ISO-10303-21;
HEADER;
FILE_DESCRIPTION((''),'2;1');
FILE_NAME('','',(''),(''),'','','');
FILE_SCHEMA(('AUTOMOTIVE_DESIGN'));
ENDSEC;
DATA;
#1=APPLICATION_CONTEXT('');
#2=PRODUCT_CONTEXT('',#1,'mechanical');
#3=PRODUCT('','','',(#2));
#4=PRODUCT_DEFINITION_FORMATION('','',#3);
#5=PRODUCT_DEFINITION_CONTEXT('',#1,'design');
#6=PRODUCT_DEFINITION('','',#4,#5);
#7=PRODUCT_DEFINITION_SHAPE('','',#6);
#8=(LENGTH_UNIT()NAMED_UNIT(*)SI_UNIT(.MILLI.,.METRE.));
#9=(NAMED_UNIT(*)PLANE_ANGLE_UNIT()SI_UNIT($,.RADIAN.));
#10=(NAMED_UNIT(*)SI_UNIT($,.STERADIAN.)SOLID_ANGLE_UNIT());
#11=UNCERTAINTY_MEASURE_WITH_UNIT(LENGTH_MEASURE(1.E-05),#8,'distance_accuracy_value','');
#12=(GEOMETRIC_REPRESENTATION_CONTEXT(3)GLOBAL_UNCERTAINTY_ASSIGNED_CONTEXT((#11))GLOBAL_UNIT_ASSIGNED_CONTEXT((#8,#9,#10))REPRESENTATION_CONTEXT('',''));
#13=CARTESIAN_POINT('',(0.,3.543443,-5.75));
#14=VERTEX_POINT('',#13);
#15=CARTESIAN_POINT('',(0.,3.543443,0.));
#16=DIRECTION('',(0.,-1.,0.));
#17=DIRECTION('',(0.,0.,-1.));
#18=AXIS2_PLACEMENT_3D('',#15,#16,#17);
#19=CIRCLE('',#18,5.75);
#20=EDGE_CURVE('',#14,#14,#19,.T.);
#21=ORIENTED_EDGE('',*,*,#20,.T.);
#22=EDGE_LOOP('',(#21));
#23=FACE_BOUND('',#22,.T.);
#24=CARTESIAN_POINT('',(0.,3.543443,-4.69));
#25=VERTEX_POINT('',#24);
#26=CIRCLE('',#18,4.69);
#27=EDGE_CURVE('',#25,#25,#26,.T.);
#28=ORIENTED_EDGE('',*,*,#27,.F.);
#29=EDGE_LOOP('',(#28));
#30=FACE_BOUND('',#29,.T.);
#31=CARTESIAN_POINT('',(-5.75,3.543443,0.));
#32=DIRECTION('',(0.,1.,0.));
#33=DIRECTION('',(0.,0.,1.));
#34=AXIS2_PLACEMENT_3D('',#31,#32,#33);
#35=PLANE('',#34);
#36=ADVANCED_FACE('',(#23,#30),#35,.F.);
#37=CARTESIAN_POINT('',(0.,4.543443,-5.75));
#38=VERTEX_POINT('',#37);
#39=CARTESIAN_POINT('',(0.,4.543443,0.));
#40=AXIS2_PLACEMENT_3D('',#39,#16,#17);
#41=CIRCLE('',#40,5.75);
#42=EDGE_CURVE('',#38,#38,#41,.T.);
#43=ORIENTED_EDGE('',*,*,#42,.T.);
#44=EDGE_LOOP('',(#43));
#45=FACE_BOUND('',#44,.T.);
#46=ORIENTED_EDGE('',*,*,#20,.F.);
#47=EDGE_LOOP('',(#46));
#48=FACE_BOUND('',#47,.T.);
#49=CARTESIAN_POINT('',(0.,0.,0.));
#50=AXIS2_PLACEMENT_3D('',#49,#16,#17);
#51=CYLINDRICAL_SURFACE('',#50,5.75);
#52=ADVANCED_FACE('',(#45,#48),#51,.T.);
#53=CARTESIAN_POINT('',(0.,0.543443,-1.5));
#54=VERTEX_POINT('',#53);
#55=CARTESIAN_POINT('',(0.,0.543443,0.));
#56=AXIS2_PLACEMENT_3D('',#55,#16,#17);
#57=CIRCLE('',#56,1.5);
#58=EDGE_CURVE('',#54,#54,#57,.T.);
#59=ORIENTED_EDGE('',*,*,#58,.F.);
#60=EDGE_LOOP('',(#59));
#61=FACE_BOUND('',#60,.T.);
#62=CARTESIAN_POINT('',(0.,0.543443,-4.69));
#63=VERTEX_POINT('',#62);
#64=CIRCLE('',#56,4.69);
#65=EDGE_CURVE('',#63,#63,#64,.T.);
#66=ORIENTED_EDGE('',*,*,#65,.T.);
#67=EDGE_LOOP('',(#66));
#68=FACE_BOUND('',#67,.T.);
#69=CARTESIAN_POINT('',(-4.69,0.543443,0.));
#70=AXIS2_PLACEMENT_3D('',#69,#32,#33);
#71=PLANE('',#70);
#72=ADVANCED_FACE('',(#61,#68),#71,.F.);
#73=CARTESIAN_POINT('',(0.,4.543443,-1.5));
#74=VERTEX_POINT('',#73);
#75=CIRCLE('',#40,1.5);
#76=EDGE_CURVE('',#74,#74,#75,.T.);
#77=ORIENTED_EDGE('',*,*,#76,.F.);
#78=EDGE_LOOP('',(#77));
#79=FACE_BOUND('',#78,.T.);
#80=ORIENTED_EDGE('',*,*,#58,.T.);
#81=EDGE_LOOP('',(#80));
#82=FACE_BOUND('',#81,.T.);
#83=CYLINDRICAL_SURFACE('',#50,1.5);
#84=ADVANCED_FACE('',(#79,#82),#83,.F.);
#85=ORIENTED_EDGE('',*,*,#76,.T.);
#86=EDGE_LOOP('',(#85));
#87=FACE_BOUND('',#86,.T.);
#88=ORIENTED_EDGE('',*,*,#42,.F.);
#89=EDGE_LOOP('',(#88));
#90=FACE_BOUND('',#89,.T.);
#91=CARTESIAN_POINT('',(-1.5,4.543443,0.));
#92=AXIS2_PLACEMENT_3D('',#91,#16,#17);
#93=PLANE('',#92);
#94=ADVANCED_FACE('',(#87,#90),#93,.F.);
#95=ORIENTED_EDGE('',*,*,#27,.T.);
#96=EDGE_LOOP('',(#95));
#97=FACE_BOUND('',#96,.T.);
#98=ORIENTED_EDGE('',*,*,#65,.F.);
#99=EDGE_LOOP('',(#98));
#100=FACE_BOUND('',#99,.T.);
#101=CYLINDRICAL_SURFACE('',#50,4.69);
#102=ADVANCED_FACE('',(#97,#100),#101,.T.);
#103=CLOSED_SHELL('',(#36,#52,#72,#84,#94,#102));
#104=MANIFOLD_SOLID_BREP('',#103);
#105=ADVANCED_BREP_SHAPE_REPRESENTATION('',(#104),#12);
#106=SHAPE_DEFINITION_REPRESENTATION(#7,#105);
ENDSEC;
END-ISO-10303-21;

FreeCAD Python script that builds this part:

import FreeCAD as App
import Part
import Sketcher

V = App.Vector
Q = App.Units.Quantity


def add_polygon(sketch, points):
    """Adds a closed chain of lines whose ends are joined by coincident constraints."""
    first, n = sketch.GeometryCount, len(points)
    for a, b in zip(points, points[1:] + points[:1]):
        sketch.addGeometry(Part.LineSegment(App.Vector(*a, 0), App.Vector(*b, 0)), False)
    for i in range(n):
        sketch.addConstraint(Sketcher.Constraint("Coincident", first + i, 2, first + (i + 1) % n, 1))

doc = App.newDocument("Part")
body = doc.addObject("PartDesign::Body", "Body")

sketch1 = doc.addObject("Sketcher::SketchObject", "Sketch")
body.addObject(sketch1)
sketch1.AttachmentSupport = (doc.XY_Plane, [""])
sketch1.MapMode = "FlatFace"
add_polygon(sketch1, [(-1.5, 0.5), (-1.5, 4.5), (-5.8, 4.5), (-5.8, 3.5), (-4.7, 3.5), (-4.7, 0.5)])
sketch1.addConstraint(Sketcher.Constraint("Vertical", 0))
sketch1.addConstraint(Sketcher.Constraint("Horizontal", 1))
sketch1.addConstraint(Sketcher.Constraint("Vertical", 2))
sketch1.addConstraint(Sketcher.Constraint("Horizontal", 3))
sketch1.addConstraint(Sketcher.Constraint("Vertical", 4))
sketch1.addConstraint(Sketcher.Constraint("Horizontal", 5))
sketch1.addConstraint(Sketcher.Constraint("DistanceY", 0, 1, 0, 2, Q("4 mm")))
sketch1.addConstraint(Sketcher.Constraint("DistanceY", 2, 2, 2, 1, Q("1 mm")))
sketch1.addConstraint(Sketcher.Constraint("DistanceX", 1, 2, 1, 1, Q("4.25 mm")))
sketch1.addConstraint(Sketcher.Constraint("DistanceX", 3, 1, 3, 2, Q("1.06 mm")))
sketch1.addConstraint(Sketcher.Constraint("DistanceX", 0, 2, -1, 1, Q("1.5 mm")))
sketch1.addConstraint(Sketcher.Constraint("DistanceY", -1, 1, 0, 2, Q("4.543443 mm")))
revolution = doc.addObject("PartDesign::Revolution", "Revolution")
body.addObject(revolution)
revolution.Profile = sketch1
revolution.ReferenceAxis = (sketch1, ["V_Axis"])
revolution.Angle = 360

doc.recompute()
